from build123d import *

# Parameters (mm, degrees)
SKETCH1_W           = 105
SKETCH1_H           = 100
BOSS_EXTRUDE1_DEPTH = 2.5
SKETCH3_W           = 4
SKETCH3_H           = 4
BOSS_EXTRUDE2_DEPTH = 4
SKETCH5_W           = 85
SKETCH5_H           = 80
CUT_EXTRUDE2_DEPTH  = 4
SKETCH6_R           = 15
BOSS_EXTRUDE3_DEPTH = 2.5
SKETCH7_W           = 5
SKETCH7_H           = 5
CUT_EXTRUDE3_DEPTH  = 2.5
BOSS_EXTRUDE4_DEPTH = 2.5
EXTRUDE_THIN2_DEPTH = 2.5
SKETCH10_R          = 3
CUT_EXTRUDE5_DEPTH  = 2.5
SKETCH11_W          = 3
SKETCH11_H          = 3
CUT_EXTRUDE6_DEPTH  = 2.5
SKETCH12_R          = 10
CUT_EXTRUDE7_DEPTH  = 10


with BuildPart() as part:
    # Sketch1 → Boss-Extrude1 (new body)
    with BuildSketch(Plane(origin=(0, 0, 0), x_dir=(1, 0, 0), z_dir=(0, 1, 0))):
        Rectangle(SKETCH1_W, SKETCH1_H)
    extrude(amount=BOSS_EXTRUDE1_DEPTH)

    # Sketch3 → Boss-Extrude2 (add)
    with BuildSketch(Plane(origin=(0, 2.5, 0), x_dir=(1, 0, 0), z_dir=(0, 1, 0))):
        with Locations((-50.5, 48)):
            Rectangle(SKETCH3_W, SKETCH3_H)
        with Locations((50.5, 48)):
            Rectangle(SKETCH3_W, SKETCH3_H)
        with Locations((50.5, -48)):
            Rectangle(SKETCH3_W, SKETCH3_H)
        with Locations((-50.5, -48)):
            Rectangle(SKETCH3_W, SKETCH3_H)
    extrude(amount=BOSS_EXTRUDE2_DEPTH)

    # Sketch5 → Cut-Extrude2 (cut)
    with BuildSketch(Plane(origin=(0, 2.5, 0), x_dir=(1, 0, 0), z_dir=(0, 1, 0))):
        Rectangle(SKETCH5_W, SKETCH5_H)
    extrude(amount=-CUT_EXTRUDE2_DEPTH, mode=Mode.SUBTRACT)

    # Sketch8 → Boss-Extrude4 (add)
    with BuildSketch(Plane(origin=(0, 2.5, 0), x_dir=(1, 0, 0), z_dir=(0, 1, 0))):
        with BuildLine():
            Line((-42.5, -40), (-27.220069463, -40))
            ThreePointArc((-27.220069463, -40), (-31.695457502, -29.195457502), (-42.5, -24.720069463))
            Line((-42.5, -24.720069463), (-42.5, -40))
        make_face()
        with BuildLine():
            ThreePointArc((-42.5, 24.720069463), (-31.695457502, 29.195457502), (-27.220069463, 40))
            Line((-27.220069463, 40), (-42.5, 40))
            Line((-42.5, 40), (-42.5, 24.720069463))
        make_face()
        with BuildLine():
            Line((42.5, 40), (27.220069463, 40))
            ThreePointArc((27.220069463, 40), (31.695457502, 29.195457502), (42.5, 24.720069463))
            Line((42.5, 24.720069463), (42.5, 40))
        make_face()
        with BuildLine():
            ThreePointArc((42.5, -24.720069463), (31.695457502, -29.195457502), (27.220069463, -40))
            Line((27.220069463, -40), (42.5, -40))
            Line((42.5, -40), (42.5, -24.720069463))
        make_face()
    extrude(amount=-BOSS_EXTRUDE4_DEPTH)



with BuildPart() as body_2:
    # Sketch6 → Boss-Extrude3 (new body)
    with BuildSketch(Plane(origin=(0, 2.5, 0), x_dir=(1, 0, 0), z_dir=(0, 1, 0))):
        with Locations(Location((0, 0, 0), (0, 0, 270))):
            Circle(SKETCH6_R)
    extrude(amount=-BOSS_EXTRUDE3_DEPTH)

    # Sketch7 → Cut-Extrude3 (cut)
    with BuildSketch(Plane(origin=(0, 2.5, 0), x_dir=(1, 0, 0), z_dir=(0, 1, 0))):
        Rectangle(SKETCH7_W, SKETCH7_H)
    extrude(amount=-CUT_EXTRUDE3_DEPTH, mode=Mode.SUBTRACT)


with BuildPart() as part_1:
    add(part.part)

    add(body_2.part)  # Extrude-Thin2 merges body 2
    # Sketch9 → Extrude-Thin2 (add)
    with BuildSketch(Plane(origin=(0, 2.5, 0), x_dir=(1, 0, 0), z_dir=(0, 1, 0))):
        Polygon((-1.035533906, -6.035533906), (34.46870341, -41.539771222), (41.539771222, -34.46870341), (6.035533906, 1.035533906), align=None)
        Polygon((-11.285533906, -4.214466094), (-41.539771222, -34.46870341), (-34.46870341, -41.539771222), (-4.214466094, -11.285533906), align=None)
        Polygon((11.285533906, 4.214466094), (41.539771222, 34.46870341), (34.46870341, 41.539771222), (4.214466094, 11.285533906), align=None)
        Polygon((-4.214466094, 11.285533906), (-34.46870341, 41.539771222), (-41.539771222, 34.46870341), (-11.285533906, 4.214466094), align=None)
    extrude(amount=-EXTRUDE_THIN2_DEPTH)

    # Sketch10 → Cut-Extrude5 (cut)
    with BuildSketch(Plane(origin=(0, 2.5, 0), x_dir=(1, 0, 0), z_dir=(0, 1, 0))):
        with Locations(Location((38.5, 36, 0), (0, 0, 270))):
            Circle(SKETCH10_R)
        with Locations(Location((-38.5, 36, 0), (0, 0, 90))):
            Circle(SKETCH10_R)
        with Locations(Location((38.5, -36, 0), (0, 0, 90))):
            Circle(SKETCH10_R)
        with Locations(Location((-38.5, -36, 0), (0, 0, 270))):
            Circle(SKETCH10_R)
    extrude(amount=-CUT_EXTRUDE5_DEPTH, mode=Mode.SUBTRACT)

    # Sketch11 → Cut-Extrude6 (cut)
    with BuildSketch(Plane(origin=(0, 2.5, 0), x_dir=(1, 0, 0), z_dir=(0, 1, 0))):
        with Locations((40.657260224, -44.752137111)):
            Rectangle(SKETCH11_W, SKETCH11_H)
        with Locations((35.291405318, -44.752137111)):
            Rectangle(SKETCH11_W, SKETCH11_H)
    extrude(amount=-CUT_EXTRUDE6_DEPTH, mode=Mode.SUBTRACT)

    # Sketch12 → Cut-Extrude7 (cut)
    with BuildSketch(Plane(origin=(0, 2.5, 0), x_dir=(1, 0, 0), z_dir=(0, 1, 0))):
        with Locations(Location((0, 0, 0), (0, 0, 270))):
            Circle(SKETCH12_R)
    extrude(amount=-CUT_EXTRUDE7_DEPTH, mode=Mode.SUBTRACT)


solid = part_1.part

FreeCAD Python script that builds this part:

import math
import FreeCAD as App
import Part
import Sketcher

V = App.Vector


def add_polygon(sketch, points):
    """Adds a closed chain of lines whose ends are joined by coincident constraints."""
    first, n = sketch.GeometryCount, len(points)
    for a, b in zip(points, points[1:] + points[:1]):
        sketch.addGeometry(Part.LineSegment(App.Vector(*a, 0), App.Vector(*b, 0)), False)
    for i in range(n):
        sketch.addConstraint(Sketcher.Constraint("Coincident", first + i, 2, first + (i + 1) % n, 1))

doc = App.newDocument("Part")
body = doc.addObject("PartDesign::Body", "Body")

sketch1 = body.newObject("Sketcher::SketchObject", "Sketch")
sketch1.AttachmentSupport = (doc.getObject("XZ_Plane"), [""])
sketch1.MapMode = "FlatFace"
add_polygon(sketch1, [(-52, -50), (-52, 50), (52, 50), (52, -50)])
sketch1.addConstraint([
    Sketcher.Constraint("Vertical", 0),
    Sketcher.Constraint("Horizontal", 1),
    Sketcher.Constraint("Vertical", 2),
    Sketcher.Constraint("Horizontal", 3),
    Sketcher.Constraint("Symmetric", 0, 2, 2, 2, -1, 1),
    Sketcher.Constraint("DistanceX", 1, 1, 1, 2, 105.0),
    Sketcher.Constraint("DistanceY", 0, 1, 0, 2, 100.0),
])
pad1 = body.newObject("PartDesign::Pad", "Pad")
pad1.Profile = sketch1
pad1.Length = 2.5
pad1.Reversed = True

sketch2 = body.newObject("Sketcher::SketchObject", "Sketch001")
sketch2.AttachmentSupport = (doc.getObject("XZ_Plane"), [""])
sketch2.MapMode = "FlatFace"
sketch2.AttachmentOffset = App.Placement(V(0, 0, -2.5), App.Rotation())
add_polygon(sketch2, [(-52.5, -50), (-52.5, -46), (-48.5, -46), (-48.5, -50)])
add_polygon(sketch2, [(48.5, -50), (48.5, -46), (52.5, -46), (52.5, -50)])
add_polygon(sketch2, [(48.5, 46), (48.5, 50), (52.5, 50), (52.5, 46)])
add_polygon(sketch2, [(-52.5, 46), (-52.5, 50), (-48.5, 50), (-48.5, 46)])
sketch2.addConstraint([
    Sketcher.Constraint("Vertical", 0),
    Sketcher.Constraint("Horizontal", 1),
    Sketcher.Constraint("Vertical", 2),
    Sketcher.Constraint("Horizontal", 3),
    Sketcher.Constraint("Vertical", 4),
    Sketcher.Constraint("Horizontal", 5),
    Sketcher.Constraint("Vertical", 6),
    Sketcher.Constraint("Horizontal", 7),
    Sketcher.Constraint("Vertical", 8),
    Sketcher.Constraint("Horizontal", 9),
    Sketcher.Constraint("Vertical", 10),
    Sketcher.Constraint("Horizontal", 11),
    Sketcher.Constraint("Vertical", 12),
    Sketcher.Constraint("Horizontal", 13),
    Sketcher.Constraint("Vertical", 14),
    Sketcher.Constraint("Horizontal", 15),
    Sketcher.Constraint("Symmetric", 2, 2, 8, 2, -1, 1),
    Sketcher.Constraint("Symmetric", 0, 2, 10, 2, -1, 1),
    Sketcher.Constraint("Symmetric", 6, 2, 12, 2, -1, 1),
    Sketcher.Constraint("Symmetric", 4, 2, 14, 2, -1, 1),
    Sketcher.Constraint("Symmetric", 1, 2, 4, 2, -2),
    Sketcher.Constraint("Symmetric", 3, 2, 6, 2, -2),
    Sketcher.Constraint("Equal", 15, 0),
    Sketcher.Constraint("DistanceX", 1, 1, 1, 2, 4.0),
    Sketcher.Constraint("DistanceY", 0, 2, -1, 1, 46.0),
    Sketcher.Constraint("DistanceX", 1, 2, 4, 2, 97.0),
])
pad2 = body.newObject("PartDesign::Pad", "Pad001")
pad2.Profile = sketch2
pad2.Length = 4
pad2.Reversed = True

sketch3 = body.newObject("Sketcher::SketchObject", "Sketch002")
sketch3.AttachmentSupport = (doc.getObject("XZ_Plane"), [""])
sketch3.MapMode = "FlatFace"
sketch3.AttachmentOffset = App.Placement(V(0, 0, -2.5), App.Rotation())
add_polygon(sketch3, [(-42, -40), (-42, 40), (42, 40), (42, -40)])
sketch3.addConstraint([
    Sketcher.Constraint("Vertical", 0),
    Sketcher.Constraint("Horizontal", 1),
    Sketcher.Constraint("Vertical", 2),
    Sketcher.Constraint("Horizontal", 3),
    Sketcher.Constraint("Symmetric", 0, 2, 2, 2, -1, 1),
    Sketcher.Constraint("DistanceX", 1, 1, 1, 2, 85.0),
    Sketcher.Constraint("DistanceY", 0, 1, 0, 2, 80.0),
])
pocket1 = body.newObject("PartDesign::Pocket", "Pocket")
pocket1.Profile = sketch3
pocket1.Length = 4
pocket1.Reversed = True

sketch4 = body.newObject("Sketcher::SketchObject", "Sketch003")
sketch4.AttachmentSupport = (doc.getObject("XZ_Plane"), [""])
sketch4.MapMode = "FlatFace"
sketch4.AttachmentOffset = App.Placement(V(0, 0, -2.5), App.Rotation())
sketch4.addGeometry([
    Part.LineSegment(V(-42, 40, 0), V(-27, 40, 0)),
    Part.ArcOfCircle(Part.Circle(V(-43, 40, 0), V(0, 0, 1), 15), math.radians(-90), math.radians(0)),
    Part.LineSegment(V(-42, 25, 0), V(-42, 40, 0)),
    Part.ArcOfCircle(Part.Circle(V(-43, -40, 0), V(0, 0, 1), 15), math.radians(0), math.radians(90)),
    Part.LineSegment(V(-27, -40, 0), V(-42, -40, 0)),
    Part.LineSegment(V(-42, -40, 0), V(-42, -25, 0)),
    Part.LineSegment(V(42, -40, 0), V(27, -40, 0)),
    Part.ArcOfCircle(Part.Circle(V(43, -40, 0), V(0, 0, 1), 15), math.radians(90), math.radians(180)),
    Part.LineSegment(V(42, -25, 0), V(42, -40, 0)),
    Part.ArcOfCircle(Part.Circle(V(43, 40, 0), V(0, 0, 1), 15), math.radians(-180), math.radians(-90)),
    Part.LineSegment(V(27, 40, 0), V(42, 40, 0)),
    Part.LineSegment(V(42, 40, 0), V(42, 25, 0)),
], False)
sketch4.addConstraint([
    Sketcher.Constraint("Coincident", 0, 2, 1, 2),
    Sketcher.Constraint("Coincident", 1, 1, 2, 1),
    Sketcher.Constraint("Coincident", 2, 2, 0, 1),
    Sketcher.Constraint("Coincident", 3, 1, 4, 1),
    Sketcher.Constraint("Coincident", 4, 2, 5, 1),
    Sketcher.Constraint("Coincident", 5, 2, 3, 2),
    Sketcher.Constraint("Coincident", 6, 2, 7, 2),
    Sketcher.Constraint("Coincident", 7, 1, 8, 1),
    Sketcher.Constraint("Coincident", 8, 2, 6, 1),
    Sketcher.Constraint("Coincident", 9, 1, 10, 1),
    Sketcher.Constraint("Coincident", 10, 2, 11, 1),
    Sketcher.Constraint("Coincident", 11, 2, 9, 2),
    Sketcher.Constraint("Horizontal", 0),
    Sketcher.Constraint("Vertical", 2),
    Sketcher.Constraint("Horizontal", 4),
    Sketcher.Constraint("Vertical", 5),
    Sketcher.Constraint("Horizontal", 6),
    Sketcher.Constraint("Vertical", 8),
    Sketcher.Constraint("Horizontal", 10),
    Sketcher.Constraint("Vertical", 11),
    Sketcher.Constraint("Coincident", 2, 2, 1, 3),
    Sketcher.Constraint("Coincident", 4, 2, 3, 3),
    Sketcher.Constraint("Coincident", 8, 2, 7, 3),
    Sketcher.Constraint("Coincident", 10, 2, 9, 3),
    Sketcher.Constraint("Equal", 1, 3),
    Sketcher.Constraint("Equal", 3, 7),
    Sketcher.Constraint("Equal", 7, 9),
    Sketcher.Constraint("Symmetric", 1, 3, 7, 3, -1, 1),
    Sketcher.Constraint("Symmetric", 3, 3, 9, 3, -1, 1),
    Sketcher.Constraint("Symmetric", 3, 3, 7, 3, -2),
    Sketcher.Constraint("DistanceY", -1, 1, 1, 3, 40.0),
    Sketcher.Constraint("DistanceX", 3, 3, 7, 3, 85.0),
    Sketcher.Constraint("Radius", 1, 15.279931),
])
pad3 = body.newObject("PartDesign::Pad", "Pad002")
pad3.Profile = sketch4
pad3.Length = 2.5
body2 = doc.addObject("PartDesign::Body", "Body001")

sketch5 = body2.newObject("Sketcher::SketchObject", "Sketch004")
sketch5.AttachmentSupport = (doc.getObject("XZ_Plane001"), [""])
sketch5.MapMode = "FlatFace"
sketch5.AttachmentOffset = App.Placement(V(0, 0, -2.5), App.Rotation())
sketch5.addGeometry(Part.Circle(V(0, 0, 0), V(0, 0, 1), 15), False)
sketch5.addConstraint([
    Sketcher.Constraint("Coincident", 0, 3, -1, 1),
    Sketcher.Constraint("Diameter", 0, 30.0),
])
pad4 = body2.newObject("PartDesign::Pad", "Pad003")
pad4.Profile = sketch5
pad4.Length = 2.5

sketch6 = body2.newObject("Sketcher::SketchObject", "Sketch005")
sketch6.AttachmentSupport = (doc.getObject("XZ_Plane001"), [""])
sketch6.MapMode = "FlatFace"
sketch6.AttachmentOffset = App.Placement(V(0, 0, -2.5), App.Rotation())
add_polygon(sketch6, [(-2, -2), (-2, 2), (2, 2), (2, -2)])
sketch6.addConstraint([
    Sketcher.Constraint("Vertical", 0),
    Sketcher.Constraint("Horizontal", 1),
    Sketcher.Constraint("Vertical", 2),
    Sketcher.Constraint("Horizontal", 3),
    Sketcher.Constraint("Symmetric", 0, 2, 2, 2, -1, 1),
    Sketcher.Constraint("Equal", 3, 0),
    Sketcher.Constraint("DistanceX", 1, 1, 1, 2, 5.0),
])
pocket2 = body2.newObject("PartDesign::Pocket", "Pocket001")
pocket2.Profile = sketch6
pocket2.Length = 2.5
pocket2.Reversed = True
body.AllowCompound = True
doc.recompute()

boolean = body.newObject("PartDesign::Boolean", "Boolean")
boolean.Type = "Fuse"
boolean.addObjects([body2])

sketch7 = body.newObject("Sketcher::SketchObject", "Sketch006")
sketch7.AttachmentSupport = (doc.getObject("XZ_Plane"), [""])
sketch7.MapMode = "FlatFace"
sketch7.AttachmentOffset = App.Placement(V(0, 0, -2.5), App.Rotation())
add_polygon(sketch7, [(-1, 6), (34, 42), (42, 34), (6, -1)])
add_polygon(sketch7, [(-11, 4), (-42, 34), (-34, 42), (-4, 11)])
add_polygon(sketch7, [(11, -4), (42, -34), (34, -42), (4, -11)])
add_polygon(sketch7, [(-4, -11), (-34, -42), (-42, -34), (-11, -4)])
sketch7.addConstraint([
    Sketcher.Constraint("Symmetric", 4, 2, 8, 2, -1, 1),
    Sketcher.Constraint("Symmetric", 5, 2, 9, 2, -1, 1),
    Sketcher.Constraint("Symmetric", 6, 2, 10, 2, -1, 1),
    Sketcher.Constraint("Symmetric", 7, 2, 11, 2, -1, 1),
    Sketcher.Constraint("Symmetric", 0, 2, 12, 2, -1, 1),
    Sketcher.Constraint("Symmetric", 1, 2, 13, 2, -1, 1),
    Sketcher.Constraint("Symmetric", 1, 2, 4, 2, -2),
    Sketcher.Constraint("Symmetric", 0, 2, 5, 2, -2),
    Sketcher.Constraint("Symmetric", 11, 2, 14, 2, -2),
    Sketcher.Constraint("Symmetric", 10, 2, 15, 2, -2),
    Sketcher.Constraint("Perpendicular", 0, 1),
    Sketcher.Constraint("Perpendicular", 1, 2),
    Sketcher.Constraint("Perpendicular", 2, 3),
    Sketcher.Constraint("Parallel", 3, 4),
    Sketcher.Constraint("Perpendicular", 4, 5),
    Sketcher.Constraint("Perpendicular", 5, 6),
    Sketcher.Constraint("Perpendicular", 6, 7),
    Sketcher.Constraint("Distance", 1, 10.0),
    Sketcher.Constraint("DistanceX", 7, 2, 10, 2, 15.5),
    Sketcher.Constraint("DistanceY", 10, 2, 7, 2, 15.5),
    Sketcher.Constraint("DistanceY", 3, 2, 6, 2, 5.25),
    Sketcher.Constraint("DistanceY", -1, 1, 0, 2, 41.539771),
])
pad5 = body.newObject("PartDesign::Pad", "Pad004")
pad5.Profile = sketch7
pad5.Length = 2.5

sketch8 = body.newObject("Sketcher::SketchObject", "Sketch007")
sketch8.AttachmentSupport = (doc.getObject("XZ_Plane"), [""])
sketch8.MapMode = "FlatFace"
sketch8.AttachmentOffset = App.Placement(V(0, 0, -2.5), App.Rotation())
sketch8.addGeometry([
    Part.Circle(V(38.5, -36, 0), V(0, 0, 1), 3),
    Part.Circle(V(-38.5, -36, 0), V(0, 0, 1), 3),
    Part.Circle(V(38.5, 36, 0), V(0, 0, 1), 3),
    Part.Circle(V(-38.5, 36, 0), V(0, 0, 1), 3),
], False)
sketch8.addConstraint([
    Sketcher.Constraint("Equal", 0, 1),
    Sketcher.Constraint("Equal", 1, 2),
    Sketcher.Constraint("Equal", 2, 3),
    Sketcher.Constraint("Symmetric", 1, 3, 2, 3, -1, 1),
    Sketcher.Constraint("Symmetric", 0, 3, 3, 3, -1, 1),
    Sketcher.Constraint("Symmetric", 0, 3, 1, 3, -2),
    Sketcher.Constraint("Diameter", 0, 6.0),
    Sketcher.Constraint("DistanceY", 0, 3, -1, 1, 36.0),
    Sketcher.Constraint("DistanceX", 1, 3, 0, 3, 77.0),
])
pocket3 = body.newObject("PartDesign::Pocket", "Pocket002")
pocket3.Profile = sketch8
pocket3.Length = 2.5
pocket3.Reversed = True

sketch9 = body.newObject("Sketcher::SketchObject", "Sketch008")
sketch9.AttachmentSupport = (doc.getObject("XZ_Plane"), [""])
sketch9.MapMode = "FlatFace"
sketch9.AttachmentOffset = App.Placement(V(0, 0, -2.5), App.Rotation())
add_polygon(sketch9, [(39.2, 43.3), (39.2, 46.3), (42.2, 46.3), (42.2, 43.3)])
add_polygon(sketch9, [(33.8, 43.3), (33.8, 46.3), (36.8, 46.3), (36.8, 43.3)])
sketch9.addConstraint([
    Sketcher.Constraint("Vertical", 0),
    Sketcher.Constraint("Horizontal", 1),
    Sketcher.Constraint("Vertical", 2),
    Sketcher.Constraint("Horizontal", 3),
    Sketcher.Constraint("Vertical", 4),
    Sketcher.Constraint("Horizontal", 5),
    Sketcher.Constraint("Vertical", 6),
    Sketcher.Constraint("Horizontal", 7),
    Sketcher.Constraint("Horizontal", 1, 2, 4, 2),
    Sketcher.Constraint("Horizontal", 3, 2, 6, 2),
    Sketcher.Constraint("Equal", 3, 5),
    Sketcher.Constraint("Equal", 7, 0),
    Sketcher.Constraint("DistanceX", 1, 1, 1, 2, 3.0),
    Sketcher.Constraint("DistanceX", -1, 1, 0, 2, 39.15726),
    Sketcher.Constraint("DistanceY", -1, 1, 0, 2, 46.252137),
    Sketcher.Constraint("DistanceX", -1, 1, 4, 2, 33.791405),
])
pocket4 = body.newObject("PartDesign::Pocket", "Pocket003")
pocket4.Profile = sketch9
pocket4.Length = 2.5
pocket4.Reversed = True

sketch10 = body.newObject("Sketcher::SketchObject", "Sketch009")
sketch10.AttachmentSupport = (doc.getObject("XZ_Plane"), [""])
sketch10.MapMode = "FlatFace"
sketch10.AttachmentOffset = App.Placement(V(0, 0, -2.5), App.Rotation())
sketch10.addGeometry(Part.Circle(V(0, 0, 0), V(0, 0, 1), 10), False)
sketch10.addConstraint([
    Sketcher.Constraint("Coincident", 0, 3, -1, 1),
    Sketcher.Constraint("Diameter", 0, 20.0),
])
pocket5 = body.newObject("PartDesign::Pocket", "Pocket004")
pocket5.Profile = sketch10
pocket5.Length = 10
pocket5.Reversed = True

doc.recompute()
